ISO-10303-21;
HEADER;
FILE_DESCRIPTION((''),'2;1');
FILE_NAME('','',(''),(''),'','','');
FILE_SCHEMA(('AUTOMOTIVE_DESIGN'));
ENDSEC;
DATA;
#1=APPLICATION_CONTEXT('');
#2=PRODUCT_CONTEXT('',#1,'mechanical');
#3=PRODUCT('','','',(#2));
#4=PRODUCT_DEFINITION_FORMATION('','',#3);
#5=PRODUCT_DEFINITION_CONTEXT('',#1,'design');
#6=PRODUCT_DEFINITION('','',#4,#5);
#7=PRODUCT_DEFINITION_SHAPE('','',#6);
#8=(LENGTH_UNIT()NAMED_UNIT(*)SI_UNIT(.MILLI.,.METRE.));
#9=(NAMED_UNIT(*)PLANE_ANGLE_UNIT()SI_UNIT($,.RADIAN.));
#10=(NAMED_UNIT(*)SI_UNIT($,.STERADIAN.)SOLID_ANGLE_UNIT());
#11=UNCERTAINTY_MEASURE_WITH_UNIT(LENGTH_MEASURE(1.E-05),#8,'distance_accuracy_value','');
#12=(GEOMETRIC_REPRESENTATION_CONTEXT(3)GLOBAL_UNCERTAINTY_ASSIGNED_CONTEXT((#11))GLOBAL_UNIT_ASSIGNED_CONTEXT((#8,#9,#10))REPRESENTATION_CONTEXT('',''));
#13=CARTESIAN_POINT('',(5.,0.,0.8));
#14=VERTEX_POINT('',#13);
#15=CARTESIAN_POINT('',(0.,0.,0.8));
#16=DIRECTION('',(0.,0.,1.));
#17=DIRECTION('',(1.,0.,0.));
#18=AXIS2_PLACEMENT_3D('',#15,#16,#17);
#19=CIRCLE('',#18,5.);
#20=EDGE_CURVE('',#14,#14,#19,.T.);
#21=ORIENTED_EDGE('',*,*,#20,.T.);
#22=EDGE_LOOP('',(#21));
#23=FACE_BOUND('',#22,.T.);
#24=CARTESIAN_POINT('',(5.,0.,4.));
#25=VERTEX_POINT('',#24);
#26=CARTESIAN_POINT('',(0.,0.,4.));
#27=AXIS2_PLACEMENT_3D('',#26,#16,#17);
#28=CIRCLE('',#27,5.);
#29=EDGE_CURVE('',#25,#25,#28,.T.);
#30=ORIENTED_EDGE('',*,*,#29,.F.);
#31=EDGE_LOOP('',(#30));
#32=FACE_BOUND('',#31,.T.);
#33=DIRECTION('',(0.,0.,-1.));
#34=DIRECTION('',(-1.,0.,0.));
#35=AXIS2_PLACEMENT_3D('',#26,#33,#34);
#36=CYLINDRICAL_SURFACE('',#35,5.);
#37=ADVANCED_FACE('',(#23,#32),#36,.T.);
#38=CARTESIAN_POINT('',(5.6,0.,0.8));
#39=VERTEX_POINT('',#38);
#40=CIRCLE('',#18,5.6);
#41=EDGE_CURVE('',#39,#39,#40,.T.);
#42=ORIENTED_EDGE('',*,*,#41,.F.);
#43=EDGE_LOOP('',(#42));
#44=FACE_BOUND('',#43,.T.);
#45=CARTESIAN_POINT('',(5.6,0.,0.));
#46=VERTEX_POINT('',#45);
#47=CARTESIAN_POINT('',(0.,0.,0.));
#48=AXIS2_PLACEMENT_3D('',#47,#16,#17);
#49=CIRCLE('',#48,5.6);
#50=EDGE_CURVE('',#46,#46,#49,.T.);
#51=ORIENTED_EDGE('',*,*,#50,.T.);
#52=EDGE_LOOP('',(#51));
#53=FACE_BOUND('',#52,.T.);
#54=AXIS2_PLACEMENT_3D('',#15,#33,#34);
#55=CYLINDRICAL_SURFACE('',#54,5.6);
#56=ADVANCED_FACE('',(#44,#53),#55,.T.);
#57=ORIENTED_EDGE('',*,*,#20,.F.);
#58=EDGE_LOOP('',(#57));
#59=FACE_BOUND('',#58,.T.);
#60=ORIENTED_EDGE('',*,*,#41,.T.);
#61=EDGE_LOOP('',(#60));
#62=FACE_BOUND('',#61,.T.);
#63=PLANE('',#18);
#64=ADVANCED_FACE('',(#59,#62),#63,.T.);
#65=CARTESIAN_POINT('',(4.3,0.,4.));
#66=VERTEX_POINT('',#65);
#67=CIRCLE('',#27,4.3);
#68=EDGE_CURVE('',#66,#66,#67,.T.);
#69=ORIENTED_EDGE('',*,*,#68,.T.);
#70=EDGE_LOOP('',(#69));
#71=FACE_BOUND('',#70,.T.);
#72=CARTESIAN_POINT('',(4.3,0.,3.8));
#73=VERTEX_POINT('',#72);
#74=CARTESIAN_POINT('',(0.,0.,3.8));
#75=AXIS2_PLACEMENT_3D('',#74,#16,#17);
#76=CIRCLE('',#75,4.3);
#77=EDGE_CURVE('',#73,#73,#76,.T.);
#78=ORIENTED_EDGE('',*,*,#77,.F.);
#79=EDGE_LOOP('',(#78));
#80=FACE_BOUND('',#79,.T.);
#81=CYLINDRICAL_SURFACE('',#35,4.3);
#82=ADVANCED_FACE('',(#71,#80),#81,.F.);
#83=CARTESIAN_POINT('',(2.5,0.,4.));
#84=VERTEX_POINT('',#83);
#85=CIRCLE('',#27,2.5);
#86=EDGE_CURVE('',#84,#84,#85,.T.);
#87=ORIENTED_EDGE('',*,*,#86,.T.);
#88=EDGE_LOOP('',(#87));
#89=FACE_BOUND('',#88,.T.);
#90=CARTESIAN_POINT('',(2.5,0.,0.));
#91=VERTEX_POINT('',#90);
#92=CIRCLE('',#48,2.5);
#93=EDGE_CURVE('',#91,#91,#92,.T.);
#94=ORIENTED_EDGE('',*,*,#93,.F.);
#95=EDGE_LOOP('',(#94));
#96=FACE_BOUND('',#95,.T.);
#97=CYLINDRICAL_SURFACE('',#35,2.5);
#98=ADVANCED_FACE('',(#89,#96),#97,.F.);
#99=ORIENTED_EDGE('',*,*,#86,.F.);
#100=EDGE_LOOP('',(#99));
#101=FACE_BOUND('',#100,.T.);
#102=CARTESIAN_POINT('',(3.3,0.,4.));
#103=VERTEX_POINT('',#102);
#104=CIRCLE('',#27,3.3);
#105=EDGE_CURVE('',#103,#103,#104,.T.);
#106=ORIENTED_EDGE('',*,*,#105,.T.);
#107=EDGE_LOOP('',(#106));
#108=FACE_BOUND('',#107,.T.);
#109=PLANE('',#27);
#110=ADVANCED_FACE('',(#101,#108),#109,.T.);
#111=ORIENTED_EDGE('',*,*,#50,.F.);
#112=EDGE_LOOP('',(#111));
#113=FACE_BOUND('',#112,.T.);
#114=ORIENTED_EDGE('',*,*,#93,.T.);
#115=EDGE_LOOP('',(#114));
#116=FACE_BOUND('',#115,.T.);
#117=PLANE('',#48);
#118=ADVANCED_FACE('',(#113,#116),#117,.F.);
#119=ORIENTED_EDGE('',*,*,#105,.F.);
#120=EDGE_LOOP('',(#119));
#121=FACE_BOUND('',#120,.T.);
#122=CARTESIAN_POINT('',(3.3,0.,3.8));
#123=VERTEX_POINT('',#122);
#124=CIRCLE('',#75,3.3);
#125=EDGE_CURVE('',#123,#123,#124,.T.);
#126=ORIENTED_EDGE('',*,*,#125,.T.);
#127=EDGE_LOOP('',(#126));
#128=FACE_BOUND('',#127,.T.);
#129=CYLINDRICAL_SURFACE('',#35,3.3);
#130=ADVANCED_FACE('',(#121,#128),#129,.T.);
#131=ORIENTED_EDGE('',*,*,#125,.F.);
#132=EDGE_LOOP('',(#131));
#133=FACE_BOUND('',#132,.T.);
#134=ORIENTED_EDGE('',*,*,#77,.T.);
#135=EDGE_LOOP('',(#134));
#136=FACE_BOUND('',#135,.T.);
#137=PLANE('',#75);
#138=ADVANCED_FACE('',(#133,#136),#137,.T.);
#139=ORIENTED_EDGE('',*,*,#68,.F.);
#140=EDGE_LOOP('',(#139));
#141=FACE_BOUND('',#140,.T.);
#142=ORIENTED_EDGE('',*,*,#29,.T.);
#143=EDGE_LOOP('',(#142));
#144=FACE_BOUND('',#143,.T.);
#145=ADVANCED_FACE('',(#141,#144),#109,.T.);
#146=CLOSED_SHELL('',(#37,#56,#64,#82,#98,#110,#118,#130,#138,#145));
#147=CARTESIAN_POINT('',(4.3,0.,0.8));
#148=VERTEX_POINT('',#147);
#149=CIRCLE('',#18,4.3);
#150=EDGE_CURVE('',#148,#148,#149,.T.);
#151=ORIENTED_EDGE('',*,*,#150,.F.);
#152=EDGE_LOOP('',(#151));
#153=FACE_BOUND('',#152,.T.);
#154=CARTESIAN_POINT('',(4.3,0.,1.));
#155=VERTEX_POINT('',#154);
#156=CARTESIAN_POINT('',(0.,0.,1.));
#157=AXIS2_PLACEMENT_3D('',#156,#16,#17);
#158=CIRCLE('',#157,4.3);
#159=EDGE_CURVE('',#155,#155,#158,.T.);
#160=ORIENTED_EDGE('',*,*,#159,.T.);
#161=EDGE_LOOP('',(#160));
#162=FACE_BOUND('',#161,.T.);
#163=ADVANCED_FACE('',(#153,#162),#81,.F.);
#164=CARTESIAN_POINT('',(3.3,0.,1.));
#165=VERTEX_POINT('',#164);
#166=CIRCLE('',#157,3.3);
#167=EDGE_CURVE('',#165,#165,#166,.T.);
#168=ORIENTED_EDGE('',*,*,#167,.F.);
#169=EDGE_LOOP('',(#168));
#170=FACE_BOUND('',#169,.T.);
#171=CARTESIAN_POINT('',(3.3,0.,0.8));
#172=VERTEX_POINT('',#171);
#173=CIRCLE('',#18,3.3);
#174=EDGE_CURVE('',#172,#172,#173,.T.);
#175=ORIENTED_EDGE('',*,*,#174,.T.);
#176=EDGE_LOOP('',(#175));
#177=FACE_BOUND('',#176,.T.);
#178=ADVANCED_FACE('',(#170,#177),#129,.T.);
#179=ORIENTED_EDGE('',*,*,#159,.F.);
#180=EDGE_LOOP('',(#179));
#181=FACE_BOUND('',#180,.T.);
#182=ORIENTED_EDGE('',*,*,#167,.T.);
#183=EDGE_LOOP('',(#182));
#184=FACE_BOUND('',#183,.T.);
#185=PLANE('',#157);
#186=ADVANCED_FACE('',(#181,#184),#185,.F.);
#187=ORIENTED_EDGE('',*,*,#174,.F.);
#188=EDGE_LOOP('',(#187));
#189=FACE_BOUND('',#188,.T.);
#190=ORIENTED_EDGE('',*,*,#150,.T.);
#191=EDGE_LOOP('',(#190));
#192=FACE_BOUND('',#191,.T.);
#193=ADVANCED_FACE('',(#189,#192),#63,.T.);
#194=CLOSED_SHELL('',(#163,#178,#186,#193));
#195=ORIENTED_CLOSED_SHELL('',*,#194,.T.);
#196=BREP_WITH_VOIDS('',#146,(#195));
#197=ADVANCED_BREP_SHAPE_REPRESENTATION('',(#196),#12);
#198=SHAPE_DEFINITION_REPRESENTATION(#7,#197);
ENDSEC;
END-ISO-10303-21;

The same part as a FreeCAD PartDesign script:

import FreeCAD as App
import Part
import Sketcher
from FreeCAD import Vector
Q = App.Units.Quantity

doc = App.newDocument("Part")
params = doc.addObject("Spreadsheet::Sheet", "Params")
for row, (alias, value) in enumerate([
    ("sketch1_diameter", "11.2 mm"),
    ("sketch1_diameter2", "6.6 mm"),
    ("pad1_length", "0.8 mm"),
    ("sketch2_diameter", "10 mm"),
    ("sketch2_diameter2", "8.6 mm"),
    ("pad2_length", "3.2 mm"),
    ("sketch3_diameter", "5 mm"),
    ("sketch3_diameter2", "6.6 mm"),
    ("pad3_length", "4 mm"),
    ("sketch4_diameter", "8.6 mm"),
    ("sketch4_diameter2", "6.6 mm"),
    ("pad4_length", "2.8 mm"),
], start=1):
    params.set(f"A{row}", alias)
    params.set(f"B{row}", "=" + value)
    params.setAlias(f"B{row}", alias)

body = doc.addObject("PartDesign::Body", "Body")

sketch1 = body.newObject("Sketcher::SketchObject", "Sketch")
sketch1.AttachmentSupport = (doc.getObject("XY_Plane"), [""])
sketch1.MapMode = "FlatFace"
sketch1.addGeometry(Part.Circle(Vector(0, 0, 0), Vector(0, 0, 1), 5.6), False)
sketch1.addGeometry(Part.Circle(Vector(0, 0, 0), Vector(0, 0, 1), 3.3), False)
sketch1.addConstraint(Sketcher.Constraint("Coincident", 0, 3, -1, 1))
sketch1.addConstraint(Sketcher.Constraint("Coincident", 1, 3, -1, 1))
sketch1.addConstraint(Sketcher.Constraint("Diameter", 0, Q("11.2 mm")))
sketch1.addConstraint(Sketcher.Constraint("Diameter", 1, Q("6.6 mm")))
sketch1.setExpression("Constraints[2]", "Params.sketch1_diameter")
sketch1.setExpression("Constraints[3]", "Params.sketch1_diameter2")
pad1 = body.newObject("PartDesign::Pad", "Pad")
pad1.Profile = sketch1
pad1.setExpression("Length", "Params.pad1_length")

sketch2 = body.newObject("Sketcher::SketchObject", "Sketch001")
sketch2.AttachmentSupport = (doc.getObject("XY_Plane"), [""])
sketch2.MapMode = "FlatFace"
sketch2.AttachmentOffset = App.Placement(Vector(0, 0, 0.8), App.Rotation())
sketch2.addGeometry(Part.Circle(Vector(0, 0, 0), Vector(0, 0, 1), 5), False)
sketch2.addGeometry(Part.Circle(Vector(0, 0, 0), Vector(0, 0, 1), 4.3), False)
sketch2.addConstraint(Sketcher.Constraint("Coincident", 0, 3, -1, 1))
sketch2.addConstraint(Sketcher.Constraint("Coincident", 1, 3, -1, 1))
sketch2.addConstraint(Sketcher.Constraint("Diameter", 0, Q("10 mm")))
sketch2.addConstraint(Sketcher.Constraint("Diameter", 1, Q("8.6 mm")))
sketch2.setExpression("Constraints[2]", "Params.sketch2_diameter")
sketch2.setExpression("Constraints[3]", "Params.sketch2_diameter2")
pad2 = body.newObject("PartDesign::Pad", "Pad001")
pad2.Profile = sketch2
pad2.setExpression("Length", "Params.pad2_length")

sketch3 = body.newObject("Sketcher::SketchObject", "Sketch002")
sketch3.AttachmentSupport = (doc.getObject("XY_Plane"), [""])
sketch3.MapMode = "FlatFace"
sketch3.addGeometry(Part.Circle(Vector(0, 0, 0), Vector(0, 0, 1), 3.3), False)
sketch3.addGeometry(Part.Circle(Vector(0, 0, 0), Vector(0, 0, 1), 2.5), False)
sketch3.addConstraint(Sketcher.Constraint("Coincident", 0, 3, -1, 1))
sketch3.addConstraint(Sketcher.Constraint("Coincident", 1, 3, -1, 1))
sketch3.addConstraint(Sketcher.Constraint("Diameter", 1, Q("5 mm")))
sketch3.addConstraint(Sketcher.Constraint("Diameter", 0, Q("6.6 mm")))
sketch3.setExpression("Constraints[2]", "Params.sketch3_diameter")
sketch3.setExpression("Constraints[3]", "Params.sketch3_diameter2")
pad3 = body.newObject("PartDesign::Pad", "Pad002")
pad3.Profile = sketch3
pad3.setExpression("Length", "Params.pad3_length")

sketch4 = body.newObject("Sketcher::SketchObject", "Sketch003")
sketch4.AttachmentSupport = (doc.getObject("XY_Plane"), [""])
sketch4.MapMode = "FlatFace"
sketch4.AttachmentOffset = App.Placement(Vector(0, 0, 1), App.Rotation())
sketch4.addGeometry(Part.Circle(Vector(0, 0, 0), Vector(0, 0, 1), 4.3), False)
sketch4.addGeometry(Part.Circle(Vector(0, 0, 0), Vector(0, 0, 1), 3.3), False)
sketch4.addConstraint(Sketcher.Constraint("Coincident", 0, 3, -1, 1))
sketch4.addConstraint(Sketcher.Constraint("Coincident", 1, 3, -1, 1))
sketch4.addConstraint(Sketcher.Constraint("Diameter", 0, Q("8.6 mm")))
sketch4.addConstraint(Sketcher.Constraint("Diameter", 1, Q("6.6 mm")))
sketch4.setExpression("Constraints[2]", "Params.sketch4_diameter")
sketch4.setExpression("Constraints[3]", "Params.sketch4_diameter2")
pad4 = body.newObject("PartDesign::Pad", "Pad003")
pad4.Profile = sketch4
pad4.setExpression("Length", "Params.pad4_length")

doc.recompute()
